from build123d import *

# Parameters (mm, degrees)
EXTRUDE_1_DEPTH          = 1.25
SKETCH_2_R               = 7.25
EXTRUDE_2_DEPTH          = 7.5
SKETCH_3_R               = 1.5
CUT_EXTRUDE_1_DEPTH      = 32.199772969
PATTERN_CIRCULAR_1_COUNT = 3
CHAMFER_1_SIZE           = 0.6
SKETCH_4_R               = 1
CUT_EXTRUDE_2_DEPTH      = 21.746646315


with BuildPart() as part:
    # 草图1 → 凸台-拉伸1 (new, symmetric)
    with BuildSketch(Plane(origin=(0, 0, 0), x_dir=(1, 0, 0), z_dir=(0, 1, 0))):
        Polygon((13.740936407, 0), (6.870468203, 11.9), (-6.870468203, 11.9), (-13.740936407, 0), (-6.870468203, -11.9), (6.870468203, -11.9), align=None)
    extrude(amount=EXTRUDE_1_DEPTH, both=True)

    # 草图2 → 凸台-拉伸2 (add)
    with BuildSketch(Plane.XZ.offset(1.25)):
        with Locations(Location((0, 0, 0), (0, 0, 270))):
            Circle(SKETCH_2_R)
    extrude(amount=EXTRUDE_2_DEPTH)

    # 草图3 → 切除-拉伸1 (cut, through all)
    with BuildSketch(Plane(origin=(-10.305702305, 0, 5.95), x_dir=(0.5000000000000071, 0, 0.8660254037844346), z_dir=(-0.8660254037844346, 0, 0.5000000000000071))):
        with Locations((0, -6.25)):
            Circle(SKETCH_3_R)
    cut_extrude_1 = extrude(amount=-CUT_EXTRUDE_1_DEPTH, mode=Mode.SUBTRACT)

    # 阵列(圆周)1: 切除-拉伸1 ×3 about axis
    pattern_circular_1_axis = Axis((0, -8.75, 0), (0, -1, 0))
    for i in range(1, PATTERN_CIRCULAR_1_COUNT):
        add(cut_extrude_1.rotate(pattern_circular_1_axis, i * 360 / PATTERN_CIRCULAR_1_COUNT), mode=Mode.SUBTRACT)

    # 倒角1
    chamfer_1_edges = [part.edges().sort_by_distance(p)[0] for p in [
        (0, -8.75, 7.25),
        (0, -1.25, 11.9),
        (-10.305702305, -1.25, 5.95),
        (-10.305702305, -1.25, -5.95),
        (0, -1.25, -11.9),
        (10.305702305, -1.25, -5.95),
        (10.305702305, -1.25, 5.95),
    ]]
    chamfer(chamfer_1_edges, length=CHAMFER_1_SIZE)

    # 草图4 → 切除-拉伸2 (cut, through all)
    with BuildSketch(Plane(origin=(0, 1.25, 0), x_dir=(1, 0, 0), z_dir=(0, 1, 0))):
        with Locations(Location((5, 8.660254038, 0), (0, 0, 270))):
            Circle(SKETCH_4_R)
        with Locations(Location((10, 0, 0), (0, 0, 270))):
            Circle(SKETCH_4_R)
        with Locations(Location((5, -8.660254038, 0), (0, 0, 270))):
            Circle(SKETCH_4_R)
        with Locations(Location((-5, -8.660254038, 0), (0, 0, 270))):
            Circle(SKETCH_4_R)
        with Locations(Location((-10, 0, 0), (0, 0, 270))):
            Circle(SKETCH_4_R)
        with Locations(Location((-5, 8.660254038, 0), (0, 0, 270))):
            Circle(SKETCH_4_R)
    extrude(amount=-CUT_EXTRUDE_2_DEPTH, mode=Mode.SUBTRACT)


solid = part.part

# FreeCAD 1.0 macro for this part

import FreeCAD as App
import Part
import Sketcher
from FreeCAD import Vector
Q = App.Units.Quantity


def edges_at(feature, points):
    """Names of the edges that pass closest to the given points."""
    edges = feature.Shape.Edges
    near = lambda p: min(range(len(edges)), key=lambda i: edges[i].distToShape(Part.Vertex(*p))[0])
    return sorted({f"Edge{near(p) + 1}" for p in points})

doc = App.newDocument("Part")
body = doc.addObject("PartDesign::Body", "Body")

# Sketch on XZ plane
sketch1 = body.newObject("Sketcher::SketchObject", "Sketch")
sketch1.AttachmentSupport = (doc.getObject("XZ_Plane"), [""])
sketch1.MapMode = "FlatFace"
sketch1.addGeometry([
    Part.LineSegment(Vector(13.740936, 0, 0), Vector(6.870468, -11.9, 0)),  # 0
    Part.LineSegment(Vector(6.870468, -11.9, 0), Vector(-6.870468, -11.9, 0)),  # 1
    Part.LineSegment(Vector(-6.870468, -11.9, 0), Vector(-13.740936, 0, 0)),  # 2
    Part.LineSegment(Vector(-13.740936, 0, 0), Vector(-6.870468, 11.9, 0)),  # 3
    Part.LineSegment(Vector(-6.870468, 11.9, 0), Vector(6.870468, 11.9, 0)),  # 4
    Part.LineSegment(Vector(6.870468, 11.9, 0), Vector(13.740936, 0, 0)),  # 5
], False)
sketch1.addConstraint([
    Sketcher.Constraint("Coincident", 0, 2, 1, 1),
    Sketcher.Constraint("Coincident", 1, 2, 2, 1),
    Sketcher.Constraint("Coincident", 2, 2, 3, 1),
    Sketcher.Constraint("Coincident", 3, 2, 4, 1),
    Sketcher.Constraint("Coincident", 4, 2, 5, 1),
    Sketcher.Constraint("Coincident", 5, 2, 0, 1),
    Sketcher.Constraint("Horizontal", 1),
    Sketcher.Constraint("Horizontal", 4),
    Sketcher.Constraint("Symmetric", 0, 2, 3, 2, -1, 1),
    Sketcher.Constraint("Symmetric", 2, 2, 5, 2, -1, 1),
    Sketcher.Constraint("PointOnObject", 2, 2, -1),
    Sketcher.Constraint("Parallel", 2, 5),
    Sketcher.Constraint("Vertical", 1, 2, 3, 2),
    Sketcher.Constraint("Angle", 0, Q("-120 deg")),
    Sketcher.Constraint("DistanceY", 0, 2, -1, 1, 11.9),
    Sketcher.Constraint("DistanceX", 1, 2, 1, 1, 13.740936),
])
pad1 = body.newObject("PartDesign::Pad", "Pad")
pad1.Profile = sketch1
pad1.Length = 2.5
pad1.Midplane = True

# Sketch on XZ plane
sketch2 = body.newObject("Sketcher::SketchObject", "Sketch001")
sketch2.AttachmentSupport = (doc.getObject("XZ_Plane"), [""])
sketch2.MapMode = "FlatFace"
sketch2.AttachmentOffset = App.Placement(Vector(0, 0, 1.25), App.Rotation())
sketch2.addGeometry(Part.Circle(Vector(0, 0, 0), Vector(0, 0, 1), 7.25), False)
sketch2.addConstraint([
    Sketcher.Constraint("Coincident", 0, 3, -1, 1),
    Sketcher.Constraint("Diameter", 0, 14.5),
])
pad2 = body.newObject("PartDesign::Pad", "Pad001")
pad2.Profile = sketch2
pad2.Length = 7.5

# Sketch on an angled plane
sketch3 = body.newObject("Sketcher::SketchObject", "Sketch002")
sketch3.Placement = App.Placement(Vector(-10.305702, 0, 5.95), App.Rotation(Vector(0.5, 0, 0.866025404), Vector(0, 1, 0), Vector(-0.866025404, 0, 0.5), "ZXY"))
sketch3.addGeometry(Part.Circle(Vector(0, -6.25, 0), Vector(0, 0, 1), 1.5), False)
sketch3.addConstraint([
    Sketcher.Constraint("PointOnObject", 0, 3, -2),
    Sketcher.Constraint("Diameter", 0, 3.0),
    Sketcher.Constraint("DistanceY", 0, 3, -1, 1, 6.25),
])
pocket1 = body.newObject("PartDesign::Pocket", "Pocket")
pocket1.Profile = sketch3
pocket1.Type = "ThroughAll"
doc.recompute()

polarpattern = body.newObject("PartDesign::PolarPattern", "PolarPattern")
polarpattern.Originals = [pocket1]
polarpattern.Axis = (doc.getObject("Y_Axis"), [""])
polarpattern.Angle = 360
polarpattern.Occurrences = 3
body.Tip = polarpattern
doc.recompute()

chamfer = body.newObject("PartDesign::Chamfer", "Chamfer")
chamfer.Base = (polarpattern, edges_at(polarpattern, [
    (0, -8.75, 7.25),
    (0, -1.25, 11.9),
    (-10.306, -1.25, 5.95),
    (-10.306, -1.25, -5.95),
    (0, -1.25, -11.9),
    (10.306, -1.25, -5.95),
    (10.306, -1.25, 5.95),
]))
chamfer.Size = 0.6

# Sketch on XZ plane
sketch4 = body.newObject("Sketcher::SketchObject", "Sketch003")
sketch4.AttachmentSupport = (doc.getObject("XZ_Plane"), [""])
sketch4.MapMode = "FlatFace"
sketch4.AttachmentOffset = App.Placement(Vector(0, 0, -1.25), App.Rotation())
sketch4.addGeometry([
    Part.Circle(Vector(5, -8.660254, 0), Vector(0, 0, 1), 1),  # 0
    Part.Circle(Vector(10, 0, 0), Vector(0, 0, 1), 1),  # 1
    Part.Circle(Vector(5, 8.660254, 0), Vector(0, 0, 1), 1),  # 2
    Part.Circle(Vector(-5, 8.660254, 0), Vector(0, 0, 1), 1),  # 3
    Part.Circle(Vector(-10, 0, 0), Vector(0, 0, 1), 1),  # 4
    Part.Circle(Vector(-5, -8.660254, 0), Vector(0, 0, 1), 1),  # 5
], False)
sketch4.addConstraint([
    Sketcher.Constraint("Equal", 0, 1),
    Sketcher.Constraint("Equal", 1, 2),
    Sketcher.Constraint("Equal", 2, 3),
    Sketcher.Constraint("Equal", 3, 4),
    Sketcher.Constraint("Equal", 4, 5),
    Sketcher.Constraint("Symmetric", 0, 3, 3, 3, -1, 1),
    Sketcher.Constraint("Symmetric", 1, 3, 4, 3, -1, 1),
    Sketcher.Constraint("Symmetric", 2, 3, 5, 3, -1, 1),
    Sketcher.Constraint("Symmetric", 2, 3, 3, 3, -2),
    Sketcher.Constraint("PointOnObject", 1, 3, -1),
    Sketcher.Constraint("Diameter", 0, 2.0),
    Sketcher.Constraint("DistanceX", -1, 1, 0, 3, 5.0),
    Sketcher.Constraint("DistanceX", -1, 1, 1, 3, 10.0),
    Sketcher.Constraint("DistanceY", 0, 3, 2, 3, 17.320508),
])
pocket2 = body.newObject("PartDesign::Pocket", "Pocket001")
pocket2.Profile = sketch4
pocket2.Type = "ThroughAll"
pocket2.Reversed = True

doc.recompute()
